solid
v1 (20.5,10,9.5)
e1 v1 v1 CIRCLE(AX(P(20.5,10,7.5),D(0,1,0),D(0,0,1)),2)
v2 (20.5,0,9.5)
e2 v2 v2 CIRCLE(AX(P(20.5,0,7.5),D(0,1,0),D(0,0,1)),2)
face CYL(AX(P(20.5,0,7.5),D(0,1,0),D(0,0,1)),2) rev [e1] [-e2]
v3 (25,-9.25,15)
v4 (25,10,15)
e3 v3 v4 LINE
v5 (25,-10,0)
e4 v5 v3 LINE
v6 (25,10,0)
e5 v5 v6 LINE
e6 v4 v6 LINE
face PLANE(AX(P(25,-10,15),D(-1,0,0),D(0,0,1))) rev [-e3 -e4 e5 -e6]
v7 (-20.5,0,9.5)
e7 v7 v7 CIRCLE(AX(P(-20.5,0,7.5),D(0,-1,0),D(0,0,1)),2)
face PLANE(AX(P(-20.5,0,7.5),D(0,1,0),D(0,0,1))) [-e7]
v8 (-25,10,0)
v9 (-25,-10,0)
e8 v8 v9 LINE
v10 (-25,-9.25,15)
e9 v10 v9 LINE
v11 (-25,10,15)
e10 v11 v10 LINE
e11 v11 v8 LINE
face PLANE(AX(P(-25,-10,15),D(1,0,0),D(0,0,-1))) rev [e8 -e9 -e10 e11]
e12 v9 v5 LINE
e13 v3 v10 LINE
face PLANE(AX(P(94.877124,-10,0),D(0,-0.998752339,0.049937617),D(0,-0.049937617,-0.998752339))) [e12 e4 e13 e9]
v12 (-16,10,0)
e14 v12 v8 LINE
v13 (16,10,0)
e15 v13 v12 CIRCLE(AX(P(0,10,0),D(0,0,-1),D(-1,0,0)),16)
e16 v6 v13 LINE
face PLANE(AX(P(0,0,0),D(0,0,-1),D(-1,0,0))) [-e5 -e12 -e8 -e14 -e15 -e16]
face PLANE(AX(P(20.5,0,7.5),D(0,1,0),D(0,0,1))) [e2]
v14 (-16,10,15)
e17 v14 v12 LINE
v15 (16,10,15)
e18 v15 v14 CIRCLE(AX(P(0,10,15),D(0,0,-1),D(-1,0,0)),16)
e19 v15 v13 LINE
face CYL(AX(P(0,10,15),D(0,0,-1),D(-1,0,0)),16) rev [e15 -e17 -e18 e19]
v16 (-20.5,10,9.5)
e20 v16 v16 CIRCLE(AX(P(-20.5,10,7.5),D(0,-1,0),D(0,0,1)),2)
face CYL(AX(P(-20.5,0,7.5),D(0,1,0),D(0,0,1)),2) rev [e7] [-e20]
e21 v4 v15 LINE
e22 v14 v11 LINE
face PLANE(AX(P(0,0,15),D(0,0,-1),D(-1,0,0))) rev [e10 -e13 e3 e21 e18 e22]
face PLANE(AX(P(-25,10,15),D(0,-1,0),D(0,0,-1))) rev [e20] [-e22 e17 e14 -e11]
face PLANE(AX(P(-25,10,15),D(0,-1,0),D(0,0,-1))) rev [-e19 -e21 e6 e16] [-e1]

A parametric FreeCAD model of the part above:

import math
import FreeCAD as App
import Part
import Sketcher

V = App.Vector

doc = App.newDocument("Part")
body = doc.addObject("PartDesign::Body", "Body")

# Sketch on XY plane
sketch1 = doc.addObject("Sketcher::SketchObject", "Sketch")
body.addObject(sketch1)
sketch1.AttachmentSupport = (doc.XY_Plane, [""])
sketch1.MapMode = "FlatFace"
sketch1.addGeometry([
    Part.LineSegment(V(-25, 10, 0), V(-25, -10, 0)),
    Part.LineSegment(V(-25, -10, 0), V(25, -10, 0)),
    Part.LineSegment(V(25, -10, 0), V(25, 10, 0)),
    Part.LineSegment(V(25, 10, 0), V(-25, 10, 0)),
], False)
sketch1.addConstraint([
    Sketcher.Constraint("Coincident", 0, 2, 1, 1),
    Sketcher.Constraint("Coincident", 1, 2, 2, 1),
    Sketcher.Constraint("Coincident", 2, 2, 3, 1),
    Sketcher.Constraint("Coincident", 3, 2, 0, 1),
    Sketcher.Constraint("Vertical", 0),
    Sketcher.Constraint("Horizontal", 1),
    Sketcher.Constraint("Vertical", 2),
    Sketcher.Constraint("Horizontal", 3),
    Sketcher.Constraint("Symmetric", 0, 2, 2, 2, -1, 1),
    Sketcher.Constraint("DistanceX", 1, 1, 1, 2, 50.0),
    Sketcher.Constraint("DistanceY", 0, 2, 0, 1, 20.0),
])
pad1 = doc.addObject("PartDesign::Pad", "Pad")
body.addObject(pad1)
pad1.Profile = sketch1
pad1.Length = 15

# Sketch on YZ plane
sketch2 = doc.addObject("Sketcher::SketchObject", "Sketch001")
body.addObject(sketch2)
sketch2.AttachmentSupport = (doc.YZ_Plane, [""])
sketch2.MapMode = "FlatFace"
sketch2.AttachmentOffset = App.Placement(V(0, 0, 25), App.Rotation())
sketch2.addGeometry([
    Part.LineSegment(V(-12.996257, -59.92514, 0), V(-10, 0, 0)),  # 0
    Part.LineSegment(V(-10, 0, 0), V(-9.25, 15, 0)),  # 1
    Part.LineSegment(V(-9.25, 15, 0), V(-6.253743, 74.92514, 0)),  # 2
    Part.LineSegment(V(-6.253743, 74.92514, 0), V(-126.104024, 80.917654, 0)),  # 3
    Part.LineSegment(V(-126.104024, 80.917654, 0), V(-132.846538, -53.932626, 0)),  # 4
    Part.LineSegment(V(-132.846538, -53.932626, 0), V(-12.996257, -59.92514, 0)),  # 5
], False)
sketch2.addConstraint([
    Sketcher.Constraint("Coincident", 0, 2, 1, 1),
    Sketcher.Constraint("Coincident", 1, 2, 2, 1),
    Sketcher.Constraint("Coincident", 2, 2, 3, 1),
    Sketcher.Constraint("Coincident", 3, 2, 4, 1),
    Sketcher.Constraint("Coincident", 4, 2, 5, 1),
    Sketcher.Constraint("Coincident", 5, 2, 0, 1),
    Sketcher.Constraint("PointOnObject", 0, 2, -1),
    Sketcher.Constraint("Parallel", 0, 1),
    Sketcher.Constraint("Parallel", 1, 2),
    Sketcher.Constraint("Perpendicular", 2, 3),
    Sketcher.Constraint("Perpendicular", 3, 4),
    Sketcher.Constraint("Perpendicular", 4, 5),
    Sketcher.Constraint("Equal", 0, 2),
    Sketcher.Constraint("Distance", 0, 60.0),
    Sketcher.Constraint("Distance", 3, 120.0),
    Sketcher.Constraint("DistanceX", 0, 2, -1, 1, 10.0),
    Sketcher.Constraint("DistanceY", -1, 1, 1, 2, 15.0),
    Sketcher.Constraint("DistanceX", 1, 2, -1, 1, 9.25),
])
pocket1 = doc.addObject("PartDesign::Pocket", "Pocket")
body.addObject(pocket1)
pocket1.Profile = sketch2
pocket1.Type = "ThroughAll"
pocket1.Midplane = True

# Sketch on XY plane
sketch3 = doc.addObject("Sketcher::SketchObject", "Sketch002")
body.addObject(sketch3)
sketch3.AttachmentSupport = (doc.XY_Plane, [""])
sketch3.MapMode = "FlatFace"
sketch3.addGeometry([
    Part.LineSegment(V(-16, 10, 0), V(16, 10, 0)),
    Part.ArcOfCircle(Part.Circle(V(0, 10, 0), V(0, 0, 1), 16), math.radians(180), math.radians(360)),
], False)
sketch3.addConstraint([
    Sketcher.Constraint("Coincident", 0, 1, 1, 1),
    Sketcher.Constraint("Coincident", 1, 2, 0, 2),
    Sketcher.Constraint("Horizontal", 0),
    Sketcher.Constraint("PointOnObject", 1, 3, -2),
    Sketcher.Constraint("Horizontal", 1, 3, 0, 1),
    Sketcher.Constraint("Radius", 1, 16.0),
    Sketcher.Constraint("DistanceY", -1, 1, 1, 3, 10.0),
])
pocket2 = doc.addObject("PartDesign::Pocket", "Pocket001")
body.addObject(pocket2)
pocket2.Profile = sketch3
pocket2.Length = 15
pocket2.Reversed = True

# Sketch on XZ plane
sketch4 = doc.addObject("Sketcher::SketchObject", "Sketch003")
body.addObject(sketch4)
sketch4.AttachmentSupport = (doc.XZ_Plane, [""])
sketch4.MapMode = "FlatFace"
sketch4.AttachmentOffset = App.Placement(V(0, 0, -10), App.Rotation())
sketch4.addGeometry(Part.Circle(V(20.5, 7.5, 0), V(0, 0, 1), 2), False)
sketch4.addConstraint([
    Sketcher.Constraint("Diameter", 0, 4.0),
    Sketcher.Constraint("DistanceX", -1, 1, 0, 3, 20.5),
    Sketcher.Constraint("DistanceY", -1, 1, 0, 3, 7.5),
])
pocket3 = doc.addObject("PartDesign::Pocket", "Pocket002")
body.addObject(pocket3)
pocket3.Profile = sketch4
pocket3.Length = 10
pocket3.Reversed = True
doc.recompute()

mirrored = doc.addObject("PartDesign::Mirrored", "Mirrored")
body.addObject(mirrored)
mirrored.Originals = [pocket3]
mirrored.MirrorPlane = (doc.YZ_Plane, [""])
body.Tip = mirrored

doc.recompute()
